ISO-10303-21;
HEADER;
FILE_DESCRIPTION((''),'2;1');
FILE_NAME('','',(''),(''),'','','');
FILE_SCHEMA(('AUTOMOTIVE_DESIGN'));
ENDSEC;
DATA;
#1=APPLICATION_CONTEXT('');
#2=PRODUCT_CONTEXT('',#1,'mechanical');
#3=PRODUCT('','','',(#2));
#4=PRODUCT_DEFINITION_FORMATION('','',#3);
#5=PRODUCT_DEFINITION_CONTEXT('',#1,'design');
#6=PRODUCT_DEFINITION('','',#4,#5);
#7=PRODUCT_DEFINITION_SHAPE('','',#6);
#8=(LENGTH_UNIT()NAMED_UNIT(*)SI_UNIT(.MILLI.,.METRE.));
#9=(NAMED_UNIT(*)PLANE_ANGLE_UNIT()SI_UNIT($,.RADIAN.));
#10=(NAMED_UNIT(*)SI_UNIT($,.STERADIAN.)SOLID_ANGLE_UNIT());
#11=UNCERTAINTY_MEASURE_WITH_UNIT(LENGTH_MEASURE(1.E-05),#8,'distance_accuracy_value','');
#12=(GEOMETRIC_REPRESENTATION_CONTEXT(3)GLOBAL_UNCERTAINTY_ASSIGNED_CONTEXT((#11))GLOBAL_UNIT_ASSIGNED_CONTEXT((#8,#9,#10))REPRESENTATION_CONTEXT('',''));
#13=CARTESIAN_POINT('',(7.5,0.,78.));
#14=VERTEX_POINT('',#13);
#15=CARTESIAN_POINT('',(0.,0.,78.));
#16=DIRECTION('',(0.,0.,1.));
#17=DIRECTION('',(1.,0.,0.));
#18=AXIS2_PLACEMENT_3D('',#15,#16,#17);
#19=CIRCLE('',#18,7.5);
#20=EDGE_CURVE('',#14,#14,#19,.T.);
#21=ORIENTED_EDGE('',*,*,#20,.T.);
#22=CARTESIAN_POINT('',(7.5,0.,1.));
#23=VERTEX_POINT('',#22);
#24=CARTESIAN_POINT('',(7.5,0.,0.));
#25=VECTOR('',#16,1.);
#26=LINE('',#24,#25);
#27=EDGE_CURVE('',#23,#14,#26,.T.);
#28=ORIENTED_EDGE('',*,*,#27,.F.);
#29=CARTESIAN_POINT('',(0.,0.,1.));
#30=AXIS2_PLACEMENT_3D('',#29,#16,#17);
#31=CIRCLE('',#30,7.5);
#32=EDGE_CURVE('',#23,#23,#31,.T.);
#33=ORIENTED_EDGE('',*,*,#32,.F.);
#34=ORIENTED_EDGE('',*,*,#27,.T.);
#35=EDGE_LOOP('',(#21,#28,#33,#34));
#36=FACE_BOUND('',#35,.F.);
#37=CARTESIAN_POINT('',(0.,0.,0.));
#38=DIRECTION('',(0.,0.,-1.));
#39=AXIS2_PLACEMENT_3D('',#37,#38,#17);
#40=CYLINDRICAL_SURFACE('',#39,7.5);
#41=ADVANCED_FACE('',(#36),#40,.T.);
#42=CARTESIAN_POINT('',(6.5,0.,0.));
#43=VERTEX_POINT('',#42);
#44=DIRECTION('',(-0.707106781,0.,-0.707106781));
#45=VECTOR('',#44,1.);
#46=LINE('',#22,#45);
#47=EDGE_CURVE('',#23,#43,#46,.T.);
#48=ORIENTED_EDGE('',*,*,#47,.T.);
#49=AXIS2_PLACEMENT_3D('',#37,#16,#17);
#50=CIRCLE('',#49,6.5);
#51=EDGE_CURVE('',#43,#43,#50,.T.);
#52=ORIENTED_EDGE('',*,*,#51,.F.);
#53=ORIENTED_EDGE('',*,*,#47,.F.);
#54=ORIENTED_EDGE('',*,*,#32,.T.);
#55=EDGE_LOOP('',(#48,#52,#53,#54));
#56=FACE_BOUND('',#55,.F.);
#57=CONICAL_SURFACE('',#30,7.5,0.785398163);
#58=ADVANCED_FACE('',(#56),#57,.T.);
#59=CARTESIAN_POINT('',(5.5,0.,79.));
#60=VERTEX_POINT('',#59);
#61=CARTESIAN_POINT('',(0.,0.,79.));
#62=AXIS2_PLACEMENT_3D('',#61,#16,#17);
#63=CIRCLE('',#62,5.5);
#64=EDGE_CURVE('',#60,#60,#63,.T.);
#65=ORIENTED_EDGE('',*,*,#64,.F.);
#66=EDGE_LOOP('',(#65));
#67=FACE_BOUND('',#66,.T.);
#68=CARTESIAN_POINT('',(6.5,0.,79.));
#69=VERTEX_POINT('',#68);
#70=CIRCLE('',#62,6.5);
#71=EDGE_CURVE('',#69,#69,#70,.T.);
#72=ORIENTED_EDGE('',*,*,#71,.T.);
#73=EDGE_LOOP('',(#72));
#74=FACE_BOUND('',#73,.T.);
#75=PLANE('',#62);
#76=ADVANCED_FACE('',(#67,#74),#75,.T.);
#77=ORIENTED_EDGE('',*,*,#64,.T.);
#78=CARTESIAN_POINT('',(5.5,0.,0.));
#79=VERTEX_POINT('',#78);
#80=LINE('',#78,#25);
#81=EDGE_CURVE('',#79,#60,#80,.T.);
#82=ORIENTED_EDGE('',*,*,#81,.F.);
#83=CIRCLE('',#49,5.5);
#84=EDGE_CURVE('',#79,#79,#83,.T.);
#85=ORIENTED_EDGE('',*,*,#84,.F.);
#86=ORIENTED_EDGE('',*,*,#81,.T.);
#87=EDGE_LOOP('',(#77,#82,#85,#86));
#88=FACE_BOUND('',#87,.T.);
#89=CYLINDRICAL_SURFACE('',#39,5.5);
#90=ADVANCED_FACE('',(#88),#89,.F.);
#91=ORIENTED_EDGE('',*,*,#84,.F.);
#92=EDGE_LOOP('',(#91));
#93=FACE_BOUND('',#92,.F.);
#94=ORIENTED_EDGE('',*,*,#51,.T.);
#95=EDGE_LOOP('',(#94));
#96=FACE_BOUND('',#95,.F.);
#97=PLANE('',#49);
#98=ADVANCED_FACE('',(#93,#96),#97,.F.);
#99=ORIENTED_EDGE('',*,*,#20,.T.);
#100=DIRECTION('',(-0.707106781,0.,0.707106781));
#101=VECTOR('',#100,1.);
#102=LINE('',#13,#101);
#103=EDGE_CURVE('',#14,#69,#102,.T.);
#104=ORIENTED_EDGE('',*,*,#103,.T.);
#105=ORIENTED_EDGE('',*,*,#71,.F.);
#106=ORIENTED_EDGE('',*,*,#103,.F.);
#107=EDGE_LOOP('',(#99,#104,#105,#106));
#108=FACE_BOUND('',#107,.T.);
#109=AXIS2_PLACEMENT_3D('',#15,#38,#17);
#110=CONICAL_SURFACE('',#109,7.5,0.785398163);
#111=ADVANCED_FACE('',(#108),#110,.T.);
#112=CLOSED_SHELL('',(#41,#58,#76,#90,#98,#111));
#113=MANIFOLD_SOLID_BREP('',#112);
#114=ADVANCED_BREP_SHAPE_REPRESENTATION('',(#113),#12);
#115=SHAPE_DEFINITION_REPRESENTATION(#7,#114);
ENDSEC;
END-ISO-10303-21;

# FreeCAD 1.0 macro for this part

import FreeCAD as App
import Part
import Sketcher


def edges_at(feature, points):
    """Names of the edges that pass closest to the given points."""
    edges = feature.Shape.Edges
    near = lambda p: min(range(len(edges)), key=lambda i: edges[i].distToShape(Part.Vertex(*p))[0])
    return sorted({f"Edge{near(p) + 1}" for p in points})


def faces_at(feature, points):
    """Names of the faces that lie closest to the given points."""
    faces = feature.Shape.Faces
    near = lambda p: min(range(len(faces)), key=lambda i: faces[i].distToShape(Part.Vertex(*p))[0])
    return sorted({f"Face{near(p) + 1}" for p in points})

doc = App.newDocument("Part")
params = doc.addObject("Spreadsheet::Sheet", "Params")
for row, (alias, value) in enumerate([
    ("sketch1_diameter", "15 mm"),
    ("pad1_length", "79 mm"),
    ("thickness_wall", "2 mm"),
    ("chamfer_size", "1 mm"),
], start=1):
    params.set(f"A{row}", alias)
    params.set(f"B{row}", "=" + value)
    params.setAlias(f"B{row}", alias)

body = doc.addObject("PartDesign::Body", "Body")

# Sketch on XY plane
sketch1 = body.newObject("Sketcher::SketchObject", "Sketch")
sketch1.AttachmentSupport = (doc.getObject("XY_Plane"), [""])
sketch1.MapMode = "FlatFace"
sketch1.addGeometry(Part.Circle(App.Vector(0, 0, 0), App.Vector(0, 0, 1), 7.5), False)
sketch1.addConstraint([
    Sketcher.Constraint("Coincident", 0, 3, -1, 1),
    Sketcher.Constraint("Diameter", 0, 15.0),
])
sketch1.setExpression("Constraints[1]", "Params.sketch1_diameter")
pad1 = body.newObject("PartDesign::Pad", "Pad")
pad1.Profile = sketch1
pad1.setExpression("Length", "Params.pad1_length")
doc.recompute()

thickness = body.newObject("PartDesign::Thickness", "Thickness")
thickness.Base = (pad1, faces_at(pad1, [(0, 0, 79), (0, 0, 0)]))
thickness.setExpression("Value", "Params.thickness_wall")
thickness.Reversed = True
thickness.Join = "Arc"
doc.recompute()

chamfer = body.newObject("PartDesign::Chamfer", "Chamfer")
chamfer.Base = (thickness, edges_at(thickness, [(-7.5, 0, 0), (-7.5, 0, 79)]))
chamfer.setExpression("Size", "Params.chamfer_size")

doc.recompute()
